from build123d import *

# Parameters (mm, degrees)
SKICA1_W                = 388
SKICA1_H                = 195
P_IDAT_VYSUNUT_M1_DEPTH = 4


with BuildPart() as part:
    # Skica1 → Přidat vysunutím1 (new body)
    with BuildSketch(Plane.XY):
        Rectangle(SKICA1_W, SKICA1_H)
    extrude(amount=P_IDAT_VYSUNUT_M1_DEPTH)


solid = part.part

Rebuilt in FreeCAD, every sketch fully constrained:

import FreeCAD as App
import Part
import Sketcher

V = App.Vector
Q = App.Units.Quantity

doc = App.newDocument("Part")
body = doc.addObject("PartDesign::Body", "Body")

sketch1 = doc.addObject("Sketcher::SketchObject", "Sketch")
body.addObject(sketch1)
sketch1.AttachmentSupport = (doc.XY_Plane, [""])
sketch1.MapMode = "FlatFace"
sketch1.addGeometry([
    Part.LineSegment(V(-194, 97.5, 0), V(-194, -97.5, 0)),
    Part.LineSegment(V(-194, -97.5, 0), V(194, -97.5, 0)),
    Part.LineSegment(V(194, -97.5, 0), V(194, 97.5, 0)),
    Part.LineSegment(V(194, 97.5, 0), V(-194, 97.5, 0)),
], False)
sketch1.addConstraint([
    Sketcher.Constraint("Coincident", 0, 2, 1, 1),
    Sketcher.Constraint("Coincident", 1, 2, 2, 1),
    Sketcher.Constraint("Coincident", 2, 2, 3, 1),
    Sketcher.Constraint("Coincident", 3, 2, 0, 1),
    Sketcher.Constraint("Vertical", 0),
    Sketcher.Constraint("Horizontal", 1),
    Sketcher.Constraint("Vertical", 2),
    Sketcher.Constraint("Horizontal", 3),
    Sketcher.Constraint("Symmetric", 0, 2, 2, 2, -1, 1),
    Sketcher.Constraint("DistanceX", 1, 1, 1, 2, Q("388 mm")),
    Sketcher.Constraint("DistanceY", 0, 2, 0, 1, Q("195 mm")),
])
pad1 = doc.addObject("PartDesign::Pad", "Pad")
body.addObject(pad1)
pad1.Profile = sketch1
pad1.Length = 4

doc.recompute()
